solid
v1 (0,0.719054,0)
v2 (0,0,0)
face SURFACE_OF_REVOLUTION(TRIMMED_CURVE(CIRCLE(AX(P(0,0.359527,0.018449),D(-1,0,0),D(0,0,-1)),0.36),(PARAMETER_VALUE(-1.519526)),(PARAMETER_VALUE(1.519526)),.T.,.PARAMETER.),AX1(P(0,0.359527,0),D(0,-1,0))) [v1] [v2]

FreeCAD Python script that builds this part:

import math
import FreeCAD as App
import Part
import Sketcher
from FreeCAD import Vector

doc = App.newDocument("Part")
body = doc.addObject("PartDesign::Body", "Body")

# Sketch on XY plane
sketch1 = doc.addObject("Sketcher::SketchObject", "Sketch")
body.addObject(sketch1)
sketch1.AttachmentSupport = (doc.XY_Plane, [""])
sketch1.MapMode = "FlatFace"
sketch1.addGeometry(Part.LineSegment(Vector(0, 0, 0), Vector(0, 0.719054, 0)), False)
sketch1.addGeometry(Part.ArcOfCircle(Part.Circle(Vector(0.018449, 0.359527, 0), Vector(0, 0, 1), 0.36), math.radians(92.937601), math.radians(267.062399)), False)
sketch1.addConstraint(Sketcher.Constraint("Coincident", 0, 1, 1, 2))
sketch1.addConstraint(Sketcher.Constraint("Coincident", 1, 1, 0, 2))
sketch1.addConstraint(Sketcher.Constraint("Vertical", 0))
sketch1.addConstraint(Sketcher.Constraint("Coincident", 0, 1, -1, 1))
sketch1.addConstraint(Sketcher.Constraint("Radius", 1, 0.36))
sketch1.addConstraint(Sketcher.Constraint("DistanceY", 0, 1, 0, 2, 0.719054))
revolution = doc.addObject("PartDesign::Revolution", "Revolution")
body.addObject(revolution)
revolution.Profile = sketch1
revolution.ReferenceAxis = (sketch1, ["V_Axis"])
revolution.Angle = 360

doc.recompute()
